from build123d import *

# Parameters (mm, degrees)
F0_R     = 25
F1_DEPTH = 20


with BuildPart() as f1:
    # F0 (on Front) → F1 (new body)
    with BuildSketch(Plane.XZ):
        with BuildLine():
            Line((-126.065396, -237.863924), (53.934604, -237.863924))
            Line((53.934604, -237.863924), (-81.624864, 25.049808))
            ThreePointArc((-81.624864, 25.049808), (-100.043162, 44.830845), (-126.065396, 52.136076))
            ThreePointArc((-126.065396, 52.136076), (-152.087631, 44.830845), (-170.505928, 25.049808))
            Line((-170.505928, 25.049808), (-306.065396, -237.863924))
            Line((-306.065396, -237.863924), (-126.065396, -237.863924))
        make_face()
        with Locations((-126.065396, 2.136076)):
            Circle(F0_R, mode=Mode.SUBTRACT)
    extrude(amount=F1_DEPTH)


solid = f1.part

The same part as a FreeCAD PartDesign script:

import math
import FreeCAD as App
import Part
import Sketcher

V = App.Vector
Q = App.Units.Quantity

doc = App.newDocument("Part")
body = doc.addObject("PartDesign::Body", "Body")

sketch1 = doc.addObject("Sketcher::SketchObject", "Sketch")
body.addObject(sketch1)
sketch1.AttachmentSupport = (doc.XZ_Plane, [""])
sketch1.MapMode = "FlatFace"
sketch1.addGeometry([
    Part.LineSegment(V(53.934604, -237.863924, 0), V(-81.624864, 25.049808, 0)),
    Part.ArcOfCircle(Part.Circle(V(-126.065397, 2.136074, 0), V(0, 0, 1), 50.000002), math.radians(27.275831), math.radians(89.999998)),
    Part.ArcOfCircle(Part.Circle(V(-126.065397, 2.136077, 0), V(0, 0, 1), 49.999999), math.radians(89.999999), math.radians(152.724172)),
    Part.LineSegment(V(-170.505928, 25.049808, 0), V(-306.065396, -237.863924, 0)),
    Part.LineSegment(V(-306.065396, -237.863924, 0), V(53.934604, -237.863924, 0)),
    Part.Circle(V(-126.065396, 2.136076, 0), V(0, 0, 1), 25),
], False)
sketch1.addConstraint([
    Sketcher.Constraint("Tangent", 0, 2, 1, 1),
    Sketcher.Constraint("Tangent", 1, 2, 2, 1),
    Sketcher.Constraint("Tangent", 2, 2, 3, 1),
    Sketcher.Constraint("Coincident", 3, 2, 4, 1),
    Sketcher.Constraint("Coincident", 4, 2, 0, 1),
    Sketcher.Constraint("Horizontal", 4),
    Sketcher.Constraint("Coincident", 5, 3, 1, 3),
    Sketcher.Constraint("Horizontal", 0, 2, 2, 2),
    Sketcher.Constraint("Vertical", 5, 3, 1, 2),
    Sketcher.Constraint("Equal", 0, 3),
    Sketcher.Constraint("Diameter", 5, Q("50 mm")),
    Sketcher.Constraint("Radius", 2, Q("49.999999 mm")),
    Sketcher.Constraint("DistanceX", 4, 1, 4, 2, Q("360 mm")),
    Sketcher.Constraint("DistanceY", 3, 2, 5, 3, Q("240 mm")),
    Sketcher.Constraint("DistanceX", 2, 2, -1, 1, Q("170.505928 mm")),
    Sketcher.Constraint("DistanceY", -1, 1, 2, 2, Q("25.049808 mm")),
])
pad1 = doc.addObject("PartDesign::Pad", "Pad")
body.addObject(pad1)
pad1.Profile = sketch1
pad1.Length = 20

doc.recompute()
